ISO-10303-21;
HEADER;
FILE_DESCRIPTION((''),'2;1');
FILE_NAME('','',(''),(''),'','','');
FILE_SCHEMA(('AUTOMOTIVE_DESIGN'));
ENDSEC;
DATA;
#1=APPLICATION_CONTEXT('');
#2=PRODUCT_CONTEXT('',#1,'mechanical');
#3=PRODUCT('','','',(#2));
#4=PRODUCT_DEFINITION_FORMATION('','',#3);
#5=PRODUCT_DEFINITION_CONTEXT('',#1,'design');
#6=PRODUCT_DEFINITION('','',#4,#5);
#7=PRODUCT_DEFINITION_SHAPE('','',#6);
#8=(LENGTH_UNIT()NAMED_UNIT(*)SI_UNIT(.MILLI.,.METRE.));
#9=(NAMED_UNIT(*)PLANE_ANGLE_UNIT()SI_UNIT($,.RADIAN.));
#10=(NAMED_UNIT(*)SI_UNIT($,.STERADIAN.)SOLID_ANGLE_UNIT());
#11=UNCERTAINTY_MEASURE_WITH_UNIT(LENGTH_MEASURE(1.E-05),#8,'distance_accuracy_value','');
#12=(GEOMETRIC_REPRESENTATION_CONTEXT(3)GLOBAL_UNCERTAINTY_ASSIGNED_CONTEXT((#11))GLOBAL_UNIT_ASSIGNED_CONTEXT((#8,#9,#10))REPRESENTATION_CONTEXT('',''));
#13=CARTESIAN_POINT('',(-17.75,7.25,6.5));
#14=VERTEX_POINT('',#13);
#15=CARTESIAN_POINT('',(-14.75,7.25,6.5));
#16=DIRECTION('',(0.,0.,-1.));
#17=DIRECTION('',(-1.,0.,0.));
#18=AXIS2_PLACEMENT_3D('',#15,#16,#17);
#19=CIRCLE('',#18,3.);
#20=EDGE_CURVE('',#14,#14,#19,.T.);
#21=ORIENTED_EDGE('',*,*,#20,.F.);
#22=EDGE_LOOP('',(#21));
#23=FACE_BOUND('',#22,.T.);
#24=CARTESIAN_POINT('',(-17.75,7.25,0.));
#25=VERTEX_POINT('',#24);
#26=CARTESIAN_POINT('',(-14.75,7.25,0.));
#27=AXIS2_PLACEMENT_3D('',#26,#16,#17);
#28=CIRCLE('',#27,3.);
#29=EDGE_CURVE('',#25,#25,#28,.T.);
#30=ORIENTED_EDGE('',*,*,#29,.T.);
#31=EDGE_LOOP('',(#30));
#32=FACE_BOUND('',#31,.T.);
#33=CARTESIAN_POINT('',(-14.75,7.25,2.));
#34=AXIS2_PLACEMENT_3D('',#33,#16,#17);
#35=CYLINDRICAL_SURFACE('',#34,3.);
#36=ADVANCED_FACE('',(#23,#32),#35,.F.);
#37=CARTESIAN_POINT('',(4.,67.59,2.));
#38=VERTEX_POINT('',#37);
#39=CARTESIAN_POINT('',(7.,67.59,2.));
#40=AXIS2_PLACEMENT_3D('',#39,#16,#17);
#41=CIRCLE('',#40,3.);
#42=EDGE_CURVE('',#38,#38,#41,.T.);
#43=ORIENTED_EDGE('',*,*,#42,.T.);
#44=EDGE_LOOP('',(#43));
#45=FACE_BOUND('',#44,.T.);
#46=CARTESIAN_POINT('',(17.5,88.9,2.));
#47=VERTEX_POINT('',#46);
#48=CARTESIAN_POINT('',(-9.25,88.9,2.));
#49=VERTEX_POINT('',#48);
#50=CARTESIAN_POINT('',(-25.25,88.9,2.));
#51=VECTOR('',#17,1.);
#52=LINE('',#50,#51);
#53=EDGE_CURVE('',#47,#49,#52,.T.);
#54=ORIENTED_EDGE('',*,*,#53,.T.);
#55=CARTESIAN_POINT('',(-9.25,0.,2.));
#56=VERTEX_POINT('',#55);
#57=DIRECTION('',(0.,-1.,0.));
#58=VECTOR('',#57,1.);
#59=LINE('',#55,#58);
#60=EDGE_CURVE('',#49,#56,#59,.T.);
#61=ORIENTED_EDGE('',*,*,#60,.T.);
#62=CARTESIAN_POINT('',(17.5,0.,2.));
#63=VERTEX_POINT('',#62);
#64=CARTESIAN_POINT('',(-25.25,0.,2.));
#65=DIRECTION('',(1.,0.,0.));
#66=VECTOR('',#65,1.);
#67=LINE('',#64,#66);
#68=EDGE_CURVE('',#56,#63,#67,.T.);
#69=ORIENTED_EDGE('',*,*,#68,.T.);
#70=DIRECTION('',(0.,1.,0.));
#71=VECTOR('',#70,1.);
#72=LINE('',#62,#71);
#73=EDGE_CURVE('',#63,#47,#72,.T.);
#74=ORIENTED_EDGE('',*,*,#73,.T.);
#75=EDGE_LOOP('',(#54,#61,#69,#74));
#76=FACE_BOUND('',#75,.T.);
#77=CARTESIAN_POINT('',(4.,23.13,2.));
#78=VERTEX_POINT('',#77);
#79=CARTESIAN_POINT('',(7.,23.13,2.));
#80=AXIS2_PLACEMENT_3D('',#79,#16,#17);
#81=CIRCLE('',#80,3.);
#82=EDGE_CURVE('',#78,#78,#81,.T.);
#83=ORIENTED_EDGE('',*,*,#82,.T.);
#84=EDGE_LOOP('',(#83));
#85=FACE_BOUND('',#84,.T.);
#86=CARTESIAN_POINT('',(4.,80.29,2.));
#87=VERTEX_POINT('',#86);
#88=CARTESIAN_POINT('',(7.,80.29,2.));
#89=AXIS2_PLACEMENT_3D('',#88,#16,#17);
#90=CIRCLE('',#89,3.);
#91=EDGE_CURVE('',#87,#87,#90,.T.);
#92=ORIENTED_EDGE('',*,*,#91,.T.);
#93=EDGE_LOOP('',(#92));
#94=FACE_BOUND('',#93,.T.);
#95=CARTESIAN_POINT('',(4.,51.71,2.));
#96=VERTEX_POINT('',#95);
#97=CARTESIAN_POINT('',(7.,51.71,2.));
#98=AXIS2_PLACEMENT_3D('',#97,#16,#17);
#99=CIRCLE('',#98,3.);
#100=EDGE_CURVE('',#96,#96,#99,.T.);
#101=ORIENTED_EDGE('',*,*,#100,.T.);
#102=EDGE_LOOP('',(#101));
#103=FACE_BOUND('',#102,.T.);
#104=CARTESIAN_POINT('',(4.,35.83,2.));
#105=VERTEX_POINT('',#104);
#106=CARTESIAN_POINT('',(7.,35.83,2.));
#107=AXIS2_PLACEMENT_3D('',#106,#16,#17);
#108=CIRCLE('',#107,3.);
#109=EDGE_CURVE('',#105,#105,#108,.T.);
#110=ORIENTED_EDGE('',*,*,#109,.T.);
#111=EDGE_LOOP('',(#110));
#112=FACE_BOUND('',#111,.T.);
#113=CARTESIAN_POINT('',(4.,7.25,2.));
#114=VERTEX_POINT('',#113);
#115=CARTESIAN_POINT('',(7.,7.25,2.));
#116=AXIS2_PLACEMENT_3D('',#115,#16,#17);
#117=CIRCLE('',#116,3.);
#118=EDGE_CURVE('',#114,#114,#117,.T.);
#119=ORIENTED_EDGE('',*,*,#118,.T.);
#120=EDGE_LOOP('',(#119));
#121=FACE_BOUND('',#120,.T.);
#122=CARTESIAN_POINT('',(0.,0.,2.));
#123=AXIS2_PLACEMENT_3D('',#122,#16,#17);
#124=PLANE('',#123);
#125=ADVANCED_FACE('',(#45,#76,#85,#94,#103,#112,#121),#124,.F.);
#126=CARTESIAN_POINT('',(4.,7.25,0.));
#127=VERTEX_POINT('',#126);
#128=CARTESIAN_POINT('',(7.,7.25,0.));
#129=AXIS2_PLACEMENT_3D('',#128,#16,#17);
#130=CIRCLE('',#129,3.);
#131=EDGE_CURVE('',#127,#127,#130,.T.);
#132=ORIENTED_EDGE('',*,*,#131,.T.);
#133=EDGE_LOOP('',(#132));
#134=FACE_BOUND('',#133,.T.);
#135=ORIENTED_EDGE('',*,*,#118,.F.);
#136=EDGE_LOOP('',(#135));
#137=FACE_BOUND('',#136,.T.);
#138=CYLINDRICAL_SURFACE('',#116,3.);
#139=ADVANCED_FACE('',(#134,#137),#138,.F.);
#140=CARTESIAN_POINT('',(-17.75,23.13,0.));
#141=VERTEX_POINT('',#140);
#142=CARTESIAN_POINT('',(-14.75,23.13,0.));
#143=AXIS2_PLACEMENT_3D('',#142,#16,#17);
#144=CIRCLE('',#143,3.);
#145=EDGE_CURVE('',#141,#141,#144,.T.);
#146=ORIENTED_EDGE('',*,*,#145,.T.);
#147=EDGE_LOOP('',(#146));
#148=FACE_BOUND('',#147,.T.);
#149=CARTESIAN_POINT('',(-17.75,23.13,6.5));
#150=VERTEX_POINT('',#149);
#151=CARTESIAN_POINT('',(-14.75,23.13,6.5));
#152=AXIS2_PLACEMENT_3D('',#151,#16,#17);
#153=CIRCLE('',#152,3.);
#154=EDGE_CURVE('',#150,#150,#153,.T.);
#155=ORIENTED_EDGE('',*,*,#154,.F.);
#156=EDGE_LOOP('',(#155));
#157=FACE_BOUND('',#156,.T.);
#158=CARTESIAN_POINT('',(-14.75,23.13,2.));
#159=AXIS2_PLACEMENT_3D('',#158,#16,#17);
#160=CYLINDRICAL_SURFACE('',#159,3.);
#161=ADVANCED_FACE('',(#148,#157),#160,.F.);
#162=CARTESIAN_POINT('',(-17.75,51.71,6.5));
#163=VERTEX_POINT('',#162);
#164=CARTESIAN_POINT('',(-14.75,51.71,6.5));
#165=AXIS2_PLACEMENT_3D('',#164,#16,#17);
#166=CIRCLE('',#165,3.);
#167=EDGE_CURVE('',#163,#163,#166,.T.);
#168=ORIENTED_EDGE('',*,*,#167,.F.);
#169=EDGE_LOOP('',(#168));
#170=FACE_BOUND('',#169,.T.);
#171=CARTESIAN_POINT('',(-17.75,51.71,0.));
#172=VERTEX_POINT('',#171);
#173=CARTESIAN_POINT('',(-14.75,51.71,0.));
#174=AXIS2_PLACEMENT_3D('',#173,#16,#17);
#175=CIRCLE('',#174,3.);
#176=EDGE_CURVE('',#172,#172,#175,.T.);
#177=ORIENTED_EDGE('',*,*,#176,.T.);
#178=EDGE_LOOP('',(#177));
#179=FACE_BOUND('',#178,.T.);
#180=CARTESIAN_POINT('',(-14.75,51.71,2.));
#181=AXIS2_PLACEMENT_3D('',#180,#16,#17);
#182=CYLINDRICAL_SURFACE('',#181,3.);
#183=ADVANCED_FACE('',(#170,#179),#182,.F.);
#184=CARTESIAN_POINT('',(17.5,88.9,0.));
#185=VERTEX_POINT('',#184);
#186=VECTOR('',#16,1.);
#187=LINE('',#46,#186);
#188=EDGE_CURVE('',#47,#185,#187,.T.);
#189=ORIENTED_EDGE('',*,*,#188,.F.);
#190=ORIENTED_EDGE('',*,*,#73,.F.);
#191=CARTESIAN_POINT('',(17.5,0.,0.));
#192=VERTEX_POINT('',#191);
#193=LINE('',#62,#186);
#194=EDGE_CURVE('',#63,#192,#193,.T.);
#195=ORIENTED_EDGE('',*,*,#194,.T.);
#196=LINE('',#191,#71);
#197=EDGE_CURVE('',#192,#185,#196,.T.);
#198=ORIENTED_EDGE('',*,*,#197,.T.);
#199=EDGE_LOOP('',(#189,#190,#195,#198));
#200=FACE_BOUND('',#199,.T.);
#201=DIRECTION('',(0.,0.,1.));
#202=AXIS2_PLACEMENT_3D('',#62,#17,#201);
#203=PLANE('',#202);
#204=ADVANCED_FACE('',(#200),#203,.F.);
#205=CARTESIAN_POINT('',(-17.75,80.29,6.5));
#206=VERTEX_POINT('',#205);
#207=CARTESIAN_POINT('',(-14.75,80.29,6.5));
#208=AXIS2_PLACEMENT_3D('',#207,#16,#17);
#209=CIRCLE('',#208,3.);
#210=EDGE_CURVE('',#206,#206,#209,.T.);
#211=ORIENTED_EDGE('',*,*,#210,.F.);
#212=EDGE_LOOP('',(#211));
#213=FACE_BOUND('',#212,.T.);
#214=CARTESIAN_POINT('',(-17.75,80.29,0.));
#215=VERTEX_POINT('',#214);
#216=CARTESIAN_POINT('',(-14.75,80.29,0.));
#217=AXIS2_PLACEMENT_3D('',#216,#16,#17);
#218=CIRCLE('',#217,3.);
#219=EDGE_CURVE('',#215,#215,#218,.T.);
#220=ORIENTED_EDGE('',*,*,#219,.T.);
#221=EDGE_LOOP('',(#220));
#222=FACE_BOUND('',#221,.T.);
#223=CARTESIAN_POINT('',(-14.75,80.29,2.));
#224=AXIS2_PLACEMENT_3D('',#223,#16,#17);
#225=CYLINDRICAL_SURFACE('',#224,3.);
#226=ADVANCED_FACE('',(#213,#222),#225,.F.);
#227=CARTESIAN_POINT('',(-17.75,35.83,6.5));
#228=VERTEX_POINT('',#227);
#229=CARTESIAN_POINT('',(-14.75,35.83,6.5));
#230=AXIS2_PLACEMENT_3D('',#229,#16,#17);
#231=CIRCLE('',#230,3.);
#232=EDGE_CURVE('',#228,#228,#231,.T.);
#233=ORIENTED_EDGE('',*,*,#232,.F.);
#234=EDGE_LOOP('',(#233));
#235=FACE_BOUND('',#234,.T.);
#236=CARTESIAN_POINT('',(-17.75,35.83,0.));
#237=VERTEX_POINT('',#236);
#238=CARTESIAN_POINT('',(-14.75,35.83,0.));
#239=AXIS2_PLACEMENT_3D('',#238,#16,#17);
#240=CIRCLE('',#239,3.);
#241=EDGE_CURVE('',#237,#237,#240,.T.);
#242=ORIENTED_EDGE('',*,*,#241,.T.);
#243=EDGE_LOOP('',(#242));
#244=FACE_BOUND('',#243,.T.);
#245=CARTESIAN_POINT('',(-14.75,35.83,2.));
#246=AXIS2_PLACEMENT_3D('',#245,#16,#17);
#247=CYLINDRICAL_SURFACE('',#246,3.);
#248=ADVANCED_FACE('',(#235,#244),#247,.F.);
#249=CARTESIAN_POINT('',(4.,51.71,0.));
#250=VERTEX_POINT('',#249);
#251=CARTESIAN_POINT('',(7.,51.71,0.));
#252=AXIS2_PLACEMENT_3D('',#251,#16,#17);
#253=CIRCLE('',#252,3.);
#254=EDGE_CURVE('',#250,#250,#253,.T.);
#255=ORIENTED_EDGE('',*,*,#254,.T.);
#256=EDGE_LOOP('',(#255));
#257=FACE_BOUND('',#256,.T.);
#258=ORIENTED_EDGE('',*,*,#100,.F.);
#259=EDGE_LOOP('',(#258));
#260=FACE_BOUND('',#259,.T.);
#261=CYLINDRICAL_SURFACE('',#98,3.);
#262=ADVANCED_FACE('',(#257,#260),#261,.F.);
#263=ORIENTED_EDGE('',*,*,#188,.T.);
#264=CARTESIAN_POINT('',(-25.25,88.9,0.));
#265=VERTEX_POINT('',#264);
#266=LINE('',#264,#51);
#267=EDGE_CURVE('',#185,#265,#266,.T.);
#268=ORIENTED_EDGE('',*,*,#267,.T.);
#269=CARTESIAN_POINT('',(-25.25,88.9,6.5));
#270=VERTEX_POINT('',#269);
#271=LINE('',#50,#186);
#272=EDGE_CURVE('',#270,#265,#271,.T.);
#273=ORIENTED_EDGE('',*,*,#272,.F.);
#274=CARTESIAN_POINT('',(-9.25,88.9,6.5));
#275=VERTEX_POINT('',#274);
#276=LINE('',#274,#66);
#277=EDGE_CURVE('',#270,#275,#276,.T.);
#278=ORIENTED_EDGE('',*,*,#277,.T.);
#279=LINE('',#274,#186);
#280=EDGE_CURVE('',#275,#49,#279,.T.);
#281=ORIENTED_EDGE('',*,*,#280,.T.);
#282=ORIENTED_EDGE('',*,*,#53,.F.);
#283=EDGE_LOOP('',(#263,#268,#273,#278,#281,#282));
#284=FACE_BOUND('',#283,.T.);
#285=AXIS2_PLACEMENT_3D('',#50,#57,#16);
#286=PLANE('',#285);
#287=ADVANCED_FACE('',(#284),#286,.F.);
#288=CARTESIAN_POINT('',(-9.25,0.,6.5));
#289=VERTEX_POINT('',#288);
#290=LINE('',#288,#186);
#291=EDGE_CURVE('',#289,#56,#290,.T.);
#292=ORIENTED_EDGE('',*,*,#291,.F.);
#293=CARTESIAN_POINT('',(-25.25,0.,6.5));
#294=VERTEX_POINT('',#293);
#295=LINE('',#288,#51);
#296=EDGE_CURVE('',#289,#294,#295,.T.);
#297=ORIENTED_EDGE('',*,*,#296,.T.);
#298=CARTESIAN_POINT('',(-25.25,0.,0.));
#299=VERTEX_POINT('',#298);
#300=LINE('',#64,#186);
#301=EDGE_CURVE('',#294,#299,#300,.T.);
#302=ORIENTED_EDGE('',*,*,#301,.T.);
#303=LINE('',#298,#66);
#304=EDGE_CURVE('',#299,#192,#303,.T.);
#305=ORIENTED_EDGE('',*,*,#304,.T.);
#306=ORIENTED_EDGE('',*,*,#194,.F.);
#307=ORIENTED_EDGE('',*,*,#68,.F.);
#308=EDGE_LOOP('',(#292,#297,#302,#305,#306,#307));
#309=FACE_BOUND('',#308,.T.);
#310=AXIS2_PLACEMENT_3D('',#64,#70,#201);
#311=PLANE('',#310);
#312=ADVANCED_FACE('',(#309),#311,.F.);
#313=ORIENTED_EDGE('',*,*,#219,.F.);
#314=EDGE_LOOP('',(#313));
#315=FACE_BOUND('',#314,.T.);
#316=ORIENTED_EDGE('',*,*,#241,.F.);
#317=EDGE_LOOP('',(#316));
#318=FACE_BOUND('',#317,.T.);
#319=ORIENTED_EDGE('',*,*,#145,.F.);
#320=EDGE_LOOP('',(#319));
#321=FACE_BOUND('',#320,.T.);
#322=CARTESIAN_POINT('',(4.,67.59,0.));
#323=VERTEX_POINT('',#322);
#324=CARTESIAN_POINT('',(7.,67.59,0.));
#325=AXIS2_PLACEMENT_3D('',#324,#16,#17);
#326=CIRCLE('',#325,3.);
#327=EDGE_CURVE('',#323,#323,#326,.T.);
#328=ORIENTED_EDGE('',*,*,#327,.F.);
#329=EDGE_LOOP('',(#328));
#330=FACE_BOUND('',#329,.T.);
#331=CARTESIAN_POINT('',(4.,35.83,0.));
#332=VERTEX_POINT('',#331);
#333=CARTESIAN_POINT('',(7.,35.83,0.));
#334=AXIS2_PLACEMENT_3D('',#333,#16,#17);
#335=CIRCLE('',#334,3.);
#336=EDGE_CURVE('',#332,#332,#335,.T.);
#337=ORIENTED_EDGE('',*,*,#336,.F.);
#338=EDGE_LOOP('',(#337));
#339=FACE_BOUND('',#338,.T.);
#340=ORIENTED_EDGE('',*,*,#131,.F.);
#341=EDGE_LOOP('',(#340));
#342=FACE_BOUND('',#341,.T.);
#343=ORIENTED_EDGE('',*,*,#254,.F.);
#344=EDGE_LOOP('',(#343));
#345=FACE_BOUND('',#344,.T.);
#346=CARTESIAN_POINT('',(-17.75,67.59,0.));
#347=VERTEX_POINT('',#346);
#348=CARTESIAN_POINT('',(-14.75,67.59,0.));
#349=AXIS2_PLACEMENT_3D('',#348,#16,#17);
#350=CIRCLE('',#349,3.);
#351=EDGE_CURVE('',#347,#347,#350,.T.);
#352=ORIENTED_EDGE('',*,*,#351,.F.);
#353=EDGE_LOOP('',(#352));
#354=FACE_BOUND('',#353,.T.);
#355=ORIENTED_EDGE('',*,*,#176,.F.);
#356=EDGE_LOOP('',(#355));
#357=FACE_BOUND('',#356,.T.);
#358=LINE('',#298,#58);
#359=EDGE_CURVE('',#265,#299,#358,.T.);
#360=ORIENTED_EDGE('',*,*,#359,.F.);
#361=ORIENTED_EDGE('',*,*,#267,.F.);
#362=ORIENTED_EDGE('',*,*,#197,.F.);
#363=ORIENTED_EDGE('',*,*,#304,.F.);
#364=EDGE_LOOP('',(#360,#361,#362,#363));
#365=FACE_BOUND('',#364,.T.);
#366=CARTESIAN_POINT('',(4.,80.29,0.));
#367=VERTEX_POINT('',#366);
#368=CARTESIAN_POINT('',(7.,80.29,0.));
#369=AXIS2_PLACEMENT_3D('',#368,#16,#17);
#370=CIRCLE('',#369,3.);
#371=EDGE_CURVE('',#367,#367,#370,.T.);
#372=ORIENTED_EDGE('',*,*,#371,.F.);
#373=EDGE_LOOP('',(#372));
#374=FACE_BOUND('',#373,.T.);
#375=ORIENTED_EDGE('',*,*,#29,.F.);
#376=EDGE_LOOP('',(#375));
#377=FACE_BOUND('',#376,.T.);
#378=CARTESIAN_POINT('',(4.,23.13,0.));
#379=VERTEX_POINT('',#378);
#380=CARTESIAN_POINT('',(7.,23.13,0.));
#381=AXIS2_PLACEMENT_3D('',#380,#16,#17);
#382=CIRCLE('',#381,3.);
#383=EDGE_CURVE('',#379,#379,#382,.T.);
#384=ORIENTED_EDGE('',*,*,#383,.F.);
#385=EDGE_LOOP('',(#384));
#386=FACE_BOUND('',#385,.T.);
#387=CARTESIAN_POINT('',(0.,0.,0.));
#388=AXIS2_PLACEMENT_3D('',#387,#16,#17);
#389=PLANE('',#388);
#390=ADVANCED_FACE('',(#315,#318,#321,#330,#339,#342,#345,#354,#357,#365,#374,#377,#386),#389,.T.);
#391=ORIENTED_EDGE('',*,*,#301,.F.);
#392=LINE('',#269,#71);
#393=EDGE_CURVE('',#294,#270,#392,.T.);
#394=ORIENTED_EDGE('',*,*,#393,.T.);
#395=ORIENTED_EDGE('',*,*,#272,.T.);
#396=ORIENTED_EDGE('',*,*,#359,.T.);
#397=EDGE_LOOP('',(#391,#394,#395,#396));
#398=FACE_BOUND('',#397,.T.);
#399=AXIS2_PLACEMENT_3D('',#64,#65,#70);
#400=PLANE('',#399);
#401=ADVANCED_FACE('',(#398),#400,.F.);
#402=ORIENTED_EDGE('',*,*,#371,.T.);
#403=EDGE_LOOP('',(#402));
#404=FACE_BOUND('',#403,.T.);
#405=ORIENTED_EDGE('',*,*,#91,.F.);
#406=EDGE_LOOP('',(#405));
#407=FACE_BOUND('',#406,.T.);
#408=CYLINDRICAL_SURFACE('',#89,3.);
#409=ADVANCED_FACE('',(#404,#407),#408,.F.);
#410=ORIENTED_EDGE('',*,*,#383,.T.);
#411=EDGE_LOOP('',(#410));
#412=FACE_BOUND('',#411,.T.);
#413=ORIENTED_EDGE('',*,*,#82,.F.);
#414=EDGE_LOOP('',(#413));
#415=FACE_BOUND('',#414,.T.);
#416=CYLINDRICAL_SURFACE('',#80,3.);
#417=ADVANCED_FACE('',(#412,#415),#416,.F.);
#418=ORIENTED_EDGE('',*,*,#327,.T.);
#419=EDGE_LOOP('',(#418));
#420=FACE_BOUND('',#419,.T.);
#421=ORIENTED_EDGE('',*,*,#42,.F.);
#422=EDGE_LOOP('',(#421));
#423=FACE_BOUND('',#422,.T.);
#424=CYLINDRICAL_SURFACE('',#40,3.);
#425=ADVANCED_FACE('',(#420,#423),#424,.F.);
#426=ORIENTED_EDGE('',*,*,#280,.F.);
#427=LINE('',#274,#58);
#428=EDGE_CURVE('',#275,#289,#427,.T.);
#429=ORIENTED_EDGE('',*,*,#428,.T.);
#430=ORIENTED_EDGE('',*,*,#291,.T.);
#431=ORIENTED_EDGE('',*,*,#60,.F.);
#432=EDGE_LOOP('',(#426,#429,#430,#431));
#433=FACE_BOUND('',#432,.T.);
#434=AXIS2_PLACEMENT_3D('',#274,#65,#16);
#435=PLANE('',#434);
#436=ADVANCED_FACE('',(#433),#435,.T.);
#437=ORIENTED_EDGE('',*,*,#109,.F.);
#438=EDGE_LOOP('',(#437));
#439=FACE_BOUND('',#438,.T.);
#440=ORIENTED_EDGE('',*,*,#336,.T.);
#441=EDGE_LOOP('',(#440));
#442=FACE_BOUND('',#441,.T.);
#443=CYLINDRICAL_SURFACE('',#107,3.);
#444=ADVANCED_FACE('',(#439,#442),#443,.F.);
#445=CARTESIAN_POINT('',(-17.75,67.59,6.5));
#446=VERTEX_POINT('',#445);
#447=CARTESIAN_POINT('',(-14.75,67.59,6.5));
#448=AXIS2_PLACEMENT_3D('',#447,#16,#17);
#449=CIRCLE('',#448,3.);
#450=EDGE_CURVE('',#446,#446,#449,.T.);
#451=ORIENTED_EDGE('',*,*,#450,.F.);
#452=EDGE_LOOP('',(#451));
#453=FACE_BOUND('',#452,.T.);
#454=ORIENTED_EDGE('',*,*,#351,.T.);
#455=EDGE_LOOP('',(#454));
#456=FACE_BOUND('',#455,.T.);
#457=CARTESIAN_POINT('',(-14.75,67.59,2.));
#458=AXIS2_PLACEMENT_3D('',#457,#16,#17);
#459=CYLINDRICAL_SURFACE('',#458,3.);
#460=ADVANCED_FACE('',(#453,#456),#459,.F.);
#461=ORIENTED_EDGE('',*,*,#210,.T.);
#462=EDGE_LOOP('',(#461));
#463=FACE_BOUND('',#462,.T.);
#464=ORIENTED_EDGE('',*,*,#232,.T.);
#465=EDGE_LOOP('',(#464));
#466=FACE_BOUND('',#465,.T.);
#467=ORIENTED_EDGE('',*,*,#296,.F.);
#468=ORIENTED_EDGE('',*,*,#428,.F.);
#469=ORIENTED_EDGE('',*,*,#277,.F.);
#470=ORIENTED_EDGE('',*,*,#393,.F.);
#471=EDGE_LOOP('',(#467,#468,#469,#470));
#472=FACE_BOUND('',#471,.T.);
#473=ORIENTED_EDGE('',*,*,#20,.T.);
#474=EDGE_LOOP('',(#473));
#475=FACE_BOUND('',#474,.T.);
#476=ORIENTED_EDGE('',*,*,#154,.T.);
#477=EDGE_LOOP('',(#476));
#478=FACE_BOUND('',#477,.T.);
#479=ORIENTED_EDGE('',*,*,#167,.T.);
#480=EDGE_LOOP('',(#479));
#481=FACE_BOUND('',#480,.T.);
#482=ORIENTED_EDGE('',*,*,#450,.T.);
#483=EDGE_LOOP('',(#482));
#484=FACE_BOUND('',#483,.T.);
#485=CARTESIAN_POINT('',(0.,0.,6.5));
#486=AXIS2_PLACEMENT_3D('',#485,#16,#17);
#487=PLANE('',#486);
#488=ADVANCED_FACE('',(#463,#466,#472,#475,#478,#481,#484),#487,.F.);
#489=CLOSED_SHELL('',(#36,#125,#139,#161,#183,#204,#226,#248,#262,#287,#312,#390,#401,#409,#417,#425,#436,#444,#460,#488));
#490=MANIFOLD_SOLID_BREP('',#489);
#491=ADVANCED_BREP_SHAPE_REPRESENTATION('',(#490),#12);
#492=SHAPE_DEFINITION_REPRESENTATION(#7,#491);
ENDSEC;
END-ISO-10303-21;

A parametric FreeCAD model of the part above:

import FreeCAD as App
import Part
import Sketcher
from FreeCAD import Vector
Q = App.Units.Quantity

doc = App.newDocument("Part")
body = doc.addObject("PartDesign::Body", "Body")

# Sketch on XY plane
sketch1 = body.newObject("Sketcher::SketchObject", "Sketch")
sketch1.AttachmentSupport = (doc.getObject("XY_Plane"), [""])
sketch1.MapMode = "FlatFace"
sketch1.addGeometry([
    Part.LineSegment(Vector(-25, 89, 0), Vector(-25, 0, 0)),  # 0
    Part.LineSegment(Vector(-25, 0, 0), Vector(18, 0, 0)),  # 1
    Part.LineSegment(Vector(18, 0, 0), Vector(18, 89, 0)),  # 2
    Part.LineSegment(Vector(18, 89, 0), Vector(-25, 89, 0)),  # 3
    Part.LineSegment(Vector(-10, 2, 0), Vector(-20, 2, 0)),  # 4
    Part.LineSegment(Vector(-20, 2, 0), Vector(-20, 12, 0)),  # 5
    Part.LineSegment(Vector(-20, 12, 0), Vector(-10, 12, 0)),  # 6
    Part.LineSegment(Vector(-10, 12, 0), Vector(-10, 2, 0)),  # 7
    Part.LineSegment(Vector(-10, 18, 0), Vector(-20, 18, 0)),  # 8
    Part.LineSegment(Vector(-20, 18, 0), Vector(-20, 28, 0)),  # 9
    Part.LineSegment(Vector(-20, 28, 0), Vector(-10, 28, 0)),  # 10
    Part.LineSegment(Vector(-10, 28, 0), Vector(-10, 18, 0)),  # 11
    Part.LineSegment(Vector(-10, 31, 0), Vector(-20, 31, 0)),  # 12
    Part.LineSegment(Vector(-20, 31, 0), Vector(-20, 41, 0)),  # 13
    Part.LineSegment(Vector(-20, 41, 0), Vector(-10, 41, 0)),  # 14
    Part.LineSegment(Vector(-10, 41, 0), Vector(-10, 31, 0)),  # 15
    Part.LineSegment(Vector(12, 2, 0), Vector(2, 2, 0)),  # 16
    Part.LineSegment(Vector(2, 2, 0), Vector(2, 12, 0)),  # 17
    Part.LineSegment(Vector(2, 12, 0), Vector(12, 12, 0)),  # 18
    Part.LineSegment(Vector(12, 12, 0), Vector(12, 2, 0)),  # 19
    Part.LineSegment(Vector(12, 18, 0), Vector(2, 18, 0)),  # 20
    Part.LineSegment(Vector(2, 18, 0), Vector(2, 28, 0)),  # 21
    Part.LineSegment(Vector(2, 28, 0), Vector(12, 28, 0)),  # 22
    Part.LineSegment(Vector(12, 28, 0), Vector(12, 18, 0)),  # 23
    Part.LineSegment(Vector(12, 31, 0), Vector(2, 31, 0)),  # 24
    Part.LineSegment(Vector(2, 31, 0), Vector(2, 41, 0)),  # 25
    Part.LineSegment(Vector(2, 41, 0), Vector(12, 41, 0)),  # 26
    Part.LineSegment(Vector(12, 41, 0), Vector(12, 31, 0)),  # 27
    Part.LineSegment(Vector(-10, 47, 0), Vector(-20, 47, 0)),  # 28
    Part.LineSegment(Vector(-20, 47, 0), Vector(-20, 56, 0)),  # 29
    Part.LineSegment(Vector(-20, 56, 0), Vector(-10, 56, 0)),  # 30
    Part.LineSegment(Vector(-10, 56, 0), Vector(-10, 47, 0)),  # 31
    Part.LineSegment(Vector(-10, 63, 0), Vector(-20, 63, 0)),  # 32
    Part.LineSegment(Vector(-20, 63, 0), Vector(-20, 72, 0)),  # 33
    Part.LineSegment(Vector(-20, 72, 0), Vector(-10, 72, 0)),  # 34
    Part.LineSegment(Vector(-10, 72, 0), Vector(-10, 63, 0)),  # 35
    Part.LineSegment(Vector(-10, 76, 0), Vector(-20, 76, 0)),  # 36
    Part.LineSegment(Vector(-20, 76, 0), Vector(-20, 85, 0)),  # 37
    Part.LineSegment(Vector(-20, 85, 0), Vector(-10, 85, 0)),  # 38
    Part.LineSegment(Vector(-10, 85, 0), Vector(-10, 76, 0)),  # 39
    Part.LineSegment(Vector(12, 47, 0), Vector(2, 47, 0)),  # 40
    Part.LineSegment(Vector(2, 47, 0), Vector(2, 56, 0)),  # 41
    Part.LineSegment(Vector(2, 56, 0), Vector(12, 56, 0)),  # 42
    Part.LineSegment(Vector(12, 56, 0), Vector(12, 47, 0)),  # 43
    Part.LineSegment(Vector(12, 63, 0), Vector(2, 63, 0)),  # 44
    Part.LineSegment(Vector(2, 63, 0), Vector(2, 72, 0)),  # 45
    Part.LineSegment(Vector(2, 72, 0), Vector(12, 72, 0)),  # 46
    Part.LineSegment(Vector(12, 72, 0), Vector(12, 63, 0)),  # 47
    Part.LineSegment(Vector(12, 76, 0), Vector(2, 76, 0)),  # 48
    Part.LineSegment(Vector(2, 76, 0), Vector(2, 85, 0)),  # 49
    Part.LineSegment(Vector(2, 85, 0), Vector(12, 85, 0)),  # 50
    Part.LineSegment(Vector(12, 85, 0), Vector(12, 76, 0)),  # 51
], False)
sketch1.addConstraint([
    Sketcher.Constraint("Coincident", 0, 2, 1, 1),
    Sketcher.Constraint("Coincident", 1, 2, 2, 1),
    Sketcher.Constraint("Coincident", 2, 2, 3, 1),
    Sketcher.Constraint("Coincident", 3, 2, 0, 1),
    Sketcher.Constraint("Coincident", 4, 2, 5, 1),
    Sketcher.Constraint("Coincident", 5, 2, 6, 1),
    Sketcher.Constraint("Coincident", 6, 2, 7, 1),
    Sketcher.Constraint("Coincident", 7, 2, 4, 1),
    Sketcher.Constraint("Coincident", 8, 2, 9, 1),
    Sketcher.Constraint("Coincident", 9, 2, 10, 1),
    Sketcher.Constraint("Coincident", 10, 2, 11, 1),
    Sketcher.Constraint("Coincident", 11, 2, 8, 1),
    Sketcher.Constraint("Coincident", 12, 2, 13, 1),
    Sketcher.Constraint("Coincident", 13, 2, 14, 1),
    Sketcher.Constraint("Coincident", 14, 2, 15, 1),
    Sketcher.Constraint("Coincident", 15, 2, 12, 1),
    Sketcher.Constraint("Coincident", 16, 2, 17, 1),
    Sketcher.Constraint("Coincident", 17, 2, 18, 1),
    Sketcher.Constraint("Coincident", 18, 2, 19, 1),
    Sketcher.Constraint("Coincident", 19, 2, 16, 1),
    Sketcher.Constraint("Coincident", 20, 2, 21, 1),
    Sketcher.Constraint("Coincident", 21, 2, 22, 1),
    Sketcher.Constraint("Coincident", 22, 2, 23, 1),
    Sketcher.Constraint("Coincident", 23, 2, 20, 1),
    Sketcher.Constraint("Coincident", 24, 2, 25, 1),
    Sketcher.Constraint("Coincident", 25, 2, 26, 1),
    Sketcher.Constraint("Coincident", 26, 2, 27, 1),
    Sketcher.Constraint("Coincident", 27, 2, 24, 1),
    Sketcher.Constraint("Coincident", 28, 2, 29, 1),
    Sketcher.Constraint("Coincident", 29, 2, 30, 1),
    Sketcher.Constraint("Coincident", 30, 2, 31, 1),
    Sketcher.Constraint("Coincident", 31, 2, 28, 1),
    Sketcher.Constraint("Coincident", 32, 2, 33, 1),
    Sketcher.Constraint("Coincident", 33, 2, 34, 1),
    Sketcher.Constraint("Coincident", 34, 2, 35, 1),
    Sketcher.Constraint("Coincident", 35, 2, 32, 1),
    Sketcher.Constraint("Coincident", 36, 2, 37, 1),
    Sketcher.Constraint("Coincident", 37, 2, 38, 1),
    Sketcher.Constraint("Coincident", 38, 2, 39, 1),
    Sketcher.Constraint("Coincident", 39, 2, 36, 1),
    Sketcher.Constraint("Coincident", 40, 2, 41, 1),
    Sketcher.Constraint("Coincident", 41, 2, 42, 1),
    Sketcher.Constraint("Coincident", 42, 2, 43, 1),
    Sketcher.Constraint("Coincident", 43, 2, 40, 1),
    Sketcher.Constraint("Coincident", 44, 2, 45, 1),
    Sketcher.Constraint("Coincident", 45, 2, 46, 1),
    Sketcher.Constraint("Coincident", 46, 2, 47, 1),
    Sketcher.Constraint("Coincident", 47, 2, 44, 1),
    Sketcher.Constraint("Coincident", 48, 2, 49, 1),
    Sketcher.Constraint("Coincident", 49, 2, 50, 1),
    Sketcher.Constraint("Coincident", 50, 2, 51, 1),
    Sketcher.Constraint("Coincident", 51, 2, 48, 1),
    Sketcher.Constraint("Vertical", 0),
    Sketcher.Constraint("Horizontal", 1),
    Sketcher.Constraint("Vertical", 2),
    Sketcher.Constraint("Horizontal", 3),
    Sketcher.Constraint("Horizontal", 4),
    Sketcher.Constraint("Vertical", 5),
    Sketcher.Constraint("Horizontal", 6),
    Sketcher.Constraint("Vertical", 7),
    Sketcher.Constraint("Horizontal", 8),
    Sketcher.Constraint("Vertical", 9),
    Sketcher.Constraint("Horizontal", 10),
    Sketcher.Constraint("Vertical", 11),
    Sketcher.Constraint("Horizontal", 12),
    Sketcher.Constraint("Vertical", 13),
    Sketcher.Constraint("Horizontal", 14),
    Sketcher.Constraint("Vertical", 15),
    Sketcher.Constraint("Horizontal", 16),
    Sketcher.Constraint("Vertical", 17),
    Sketcher.Constraint("Horizontal", 18),
    Sketcher.Constraint("Vertical", 19),
    Sketcher.Constraint("Horizontal", 20),
    Sketcher.Constraint("Vertical", 21),
    Sketcher.Constraint("Horizontal", 22),
    Sketcher.Constraint("Vertical", 23),
    Sketcher.Constraint("Horizontal", 24),
    Sketcher.Constraint("Vertical", 25),
    Sketcher.Constraint("Horizontal", 26),
    Sketcher.Constraint("Vertical", 27),
    Sketcher.Constraint("Horizontal", 28),
    Sketcher.Constraint("Vertical", 29),
    Sketcher.Constraint("Horizontal", 30),
    Sketcher.Constraint("Vertical", 31),
    Sketcher.Constraint("Horizontal", 32),
    Sketcher.Constraint("Vertical", 33),
    Sketcher.Constraint("Horizontal", 34),
    Sketcher.Constraint("Vertical", 35),
    Sketcher.Constraint("Horizontal", 36),
    Sketcher.Constraint("Vertical", 37),
    Sketcher.Constraint("Horizontal", 38),
    Sketcher.Constraint("Vertical", 39),
    Sketcher.Constraint("Horizontal", 40),
    Sketcher.Constraint("Vertical", 41),
    Sketcher.Constraint("Horizontal", 42),
    Sketcher.Constraint("Vertical", 43),
    Sketcher.Constraint("Horizontal", 44),
    Sketcher.Constraint("Vertical", 45),
    Sketcher.Constraint("Horizontal", 46),
    Sketcher.Constraint("Vertical", 47),
    Sketcher.Constraint("Horizontal", 48),
    Sketcher.Constraint("Vertical", 49),
    Sketcher.Constraint("Horizontal", 50),
    Sketcher.Constraint("Vertical", 51),
    Sketcher.Constraint("PointOnObject", 0, 2, -1),
    Sketcher.Constraint("Horizontal", 7, 2, 16, 2),
    Sketcher.Constraint("Horizontal", 6, 2, 17, 2),
    Sketcher.Constraint("Horizontal", 11, 2, 20, 2),
    Sketcher.Constraint("Horizontal", 10, 2, 21, 2),
    Sketcher.Constraint("Horizontal", 15, 2, 24, 2),
    Sketcher.Constraint("Horizontal", 14, 2, 25, 2),
    Sketcher.Constraint("Horizontal", 31, 2, 40, 2),
    Sketcher.Constraint("Horizontal", 30, 2, 41, 2),
    Sketcher.Constraint("Horizontal", 35, 2, 44, 2),
    Sketcher.Constraint("Horizontal", 34, 2, 45, 2),
    Sketcher.Constraint("Horizontal", 39, 2, 48, 2),
    Sketcher.Constraint("Horizontal", 38, 2, 49, 2),
    Sketcher.Constraint("Vertical", 5, 2, 8, 2),
    Sketcher.Constraint("Vertical", 7, 2, 10, 2),
    Sketcher.Constraint("Vertical", 9, 2, 12, 2),
    Sketcher.Constraint("Vertical", 11, 2, 14, 2),
    Sketcher.Constraint("Vertical", 17, 2, 20, 2),
    Sketcher.Constraint("Vertical", 19, 2, 22, 2),
    Sketcher.Constraint("Vertical", 21, 2, 24, 2),
    Sketcher.Constraint("Vertical", 23, 2, 26, 2),
    Sketcher.Constraint("Vertical", 13, 2, 28, 2),
    Sketcher.Constraint("Vertical", 15, 2, 30, 2),
    Sketcher.Constraint("Vertical", 29, 2, 32, 2),
    Sketcher.Constraint("Vertical", 31, 2, 34, 2),
    Sketcher.Constraint("Vertical", 33, 2, 36, 2),
    Sketcher.Constraint("Vertical", 35, 2, 38, 2),
    Sketcher.Constraint("Vertical", 25, 2, 40, 2),
    Sketcher.Constraint("Vertical", 27, 2, 42, 2),
    Sketcher.Constraint("Vertical", 41, 2, 44, 2),
    Sketcher.Constraint("Vertical", 43, 2, 46, 2),
    Sketcher.Constraint("Vertical", 45, 2, 48, 2),
    Sketcher.Constraint("Vertical", 47, 2, 50, 2),
    Sketcher.Constraint("Equal", 14, 16),
    Sketcher.Constraint("Equal", 50, 5),
    Sketcher.Constraint("Equal", 7, 9),
    Sketcher.Constraint("Equal", 11, 13),
    Sketcher.Constraint("Equal", 27, 29),
    Sketcher.Constraint("Equal", 31, 33),
    Sketcher.Constraint("Equal", 35, 37),
    Sketcher.Constraint("DistanceX", 4, 2, 4, 1, Q("9.5 mm")),
    Sketcher.Constraint("DistanceY", 0, 2, 0, 1, Q("88.9 mm")),
    Sketcher.Constraint("DistanceY", -1, 1, 5, 2, Q("12 mm")),
    Sketcher.Constraint("DistanceX", 6, 2, -1, 1, Q("10 mm")),
    Sketcher.Constraint("DistanceX", 4, 2, 1, 2, Q("37 mm")),
    Sketcher.Constraint("DistanceX", 1, 1, 1, 2, Q("42.75 mm")),
    Sketcher.Constraint("DistanceY", 9, 2, 12, 2, Q("3.2 mm")),
    Sketcher.Constraint("DistanceY", 33, 2, 36, 2, Q("3.2 mm")),
    Sketcher.Constraint("DistanceY", -1, 1, 8, 2, Q("18.38 mm")),
    Sketcher.Constraint("DistanceX", -1, 1, 16, 2, Q("2.25 mm")),
    Sketcher.Constraint("DistanceY", -1, 1, 28, 2, Q("46.96 mm")),
    Sketcher.Constraint("DistanceY", -1, 1, 32, 2, Q("62.84 mm")),
])
pad1 = body.newObject("PartDesign::Pad", "Pad")
pad1.Profile = sketch1
pad1.Length = 2

# Sketch on XY plane
sketch2 = body.newObject("Sketcher::SketchObject", "Sketch001")
sketch2.AttachmentSupport = (doc.getObject("XY_Plane"), [""])
sketch2.MapMode = "FlatFace"
sketch2.addGeometry([
    Part.LineSegment(Vector(11.8, 85, 0), Vector(11.8, 75.5, 0)),  # 0
    Part.LineSegment(Vector(11.8, 75.5, 0), Vector(2.2, 75.5, 0)),  # 1
    Part.LineSegment(Vector(2.2, 75.5, 0), Vector(2.2, 85, 0)),  # 2
    Part.LineSegment(Vector(2.2, 85, 0), Vector(11.8, 85, 0)),  # 3
    Part.Circle(Vector(7, 80.3, 0), Vector(0, 0, 1), 3),  # 4
    Part.LineSegment(Vector(-10, 85, 0), Vector(-10, 75.5, 0)),  # 5
    Part.LineSegment(Vector(-10, 75.5, 0), Vector(-19.5, 75.5, 0)),  # 6
    Part.LineSegment(Vector(-19.5, 75.5, 0), Vector(-19.5, 85, 0)),  # 7
    Part.LineSegment(Vector(-19.5, 85, 0), Vector(-10, 85, 0)),  # 8
    Part.Circle(Vector(-14.8, 80.3, 0), Vector(0, 0, 1), 3),  # 9
    Part.LineSegment(Vector(11.8, 72.3, 0), Vector(11.8, 62.8, 0)),  # 10
    Part.LineSegment(Vector(11.8, 62.8, 0), Vector(2.2, 62.8, 0)),  # 11
    Part.LineSegment(Vector(2.2, 62.8, 0), Vector(2.2, 72.3, 0)),  # 12
    Part.LineSegment(Vector(2.2, 72.3, 0), Vector(11.8, 72.3, 0)),  # 13
    Part.Circle(Vector(7, 67.6, 0), Vector(0, 0, 1), 3),  # 14
    Part.LineSegment(Vector(-10, 72.3, 0), Vector(-10, 62.8, 0)),  # 15
    Part.LineSegment(Vector(-10, 62.8, 0), Vector(-19.5, 62.8, 0)),  # 16
    Part.LineSegment(Vector(-19.5, 62.8, 0), Vector(-19.5, 72.3, 0)),  # 17
    Part.LineSegment(Vector(-19.5, 72.3, 0), Vector(-10, 72.3, 0)),  # 18
    Part.Circle(Vector(-14.8, 67.6, 0), Vector(0, 0, 1), 3),  # 19
    Part.LineSegment(Vector(11.8, 56.5, 0), Vector(11.8, 47, 0)),  # 20
    Part.LineSegment(Vector(11.8, 47, 0), Vector(2.2, 47, 0)),  # 21
    Part.LineSegment(Vector(2.2, 47, 0), Vector(2.2, 56.5, 0)),  # 22
    Part.LineSegment(Vector(2.2, 56.5, 0), Vector(11.8, 56.5, 0)),  # 23
    Part.Circle(Vector(7, 51.7, 0), Vector(0, 0, 1), 3),  # 24
    Part.LineSegment(Vector(-10, 56.5, 0), Vector(-10, 47, 0)),  # 25
    Part.LineSegment(Vector(-10, 47, 0), Vector(-19.5, 47, 0)),  # 26
    Part.LineSegment(Vector(-19.5, 47, 0), Vector(-19.5, 56.5, 0)),  # 27
    Part.LineSegment(Vector(-19.5, 56.5, 0), Vector(-10, 56.5, 0)),  # 28
    Part.Circle(Vector(-14.8, 51.7, 0), Vector(0, 0, 1), 3),  # 29
    Part.LineSegment(Vector(11.8, 40.6, 0), Vector(11.8, 31.1, 0)),  # 30
    Part.LineSegment(Vector(11.8, 31.1, 0), Vector(2.2, 31.1, 0)),  # 31
    Part.LineSegment(Vector(2.2, 31.1, 0), Vector(2.2, 40.6, 0)),  # 32
    Part.LineSegment(Vector(2.2, 40.6, 0), Vector(11.8, 40.6, 0)),  # 33
    Part.Circle(Vector(7, 35.8, 0), Vector(0, 0, 1), 3),  # 34
    Part.LineSegment(Vector(-10, 40.6, 0), Vector(-10, 31.1, 0)),  # 35
    Part.LineSegment(Vector(-10, 31.1, 0), Vector(-19.5, 31.1, 0)),  # 36
    Part.LineSegment(Vector(-19.5, 31.1, 0), Vector(-19.5, 40.6, 0)),  # 37
    Part.LineSegment(Vector(-19.5, 40.6, 0), Vector(-10, 40.6, 0)),  # 38
    Part.Circle(Vector(-14.8, 35.8, 0), Vector(0, 0, 1), 3),  # 39
    Part.LineSegment(Vector(11.8, 27.9, 0), Vector(11.8, 18.4, 0)),  # 40
    Part.LineSegment(Vector(11.8, 18.4, 0), Vector(2.2, 18.4, 0)),  # 41
    Part.LineSegment(Vector(2.2, 18.4, 0), Vector(2.2, 27.9, 0)),  # 42
    Part.LineSegment(Vector(2.2, 27.9, 0), Vector(11.8, 27.9, 0)),  # 43
    Part.Circle(Vector(7, 23.1, 0), Vector(0, 0, 1), 3),  # 44
    Part.LineSegment(Vector(-10, 27.9, 0), Vector(-10, 18.4, 0)),  # 45
    Part.LineSegment(Vector(-10, 18.4, 0), Vector(-19.5, 18.4, 0)),  # 46
    Part.LineSegment(Vector(-19.5, 18.4, 0), Vector(-19.5, 27.9, 0)),  # 47
    Part.LineSegment(Vector(-19.5, 27.9, 0), Vector(-10, 27.9, 0)),  # 48
    Part.Circle(Vector(-14.8, 23.1, 0), Vector(0, 0, 1), 3),  # 49
    Part.LineSegment(Vector(-10, 12, 0), Vector(-10, 2.5, 0)),  # 50
    Part.LineSegment(Vector(-10, 2.5, 0), Vector(-19.5, 2.5, 0)),  # 51
    Part.LineSegment(Vector(-19.5, 2.5, 0), Vector(-19.5, 12, 0)),  # 52
    Part.LineSegment(Vector(-19.5, 12, 0), Vector(-10, 12, 0)),  # 53
    Part.Circle(Vector(-14.8, 7.2, 0), Vector(0, 0, 1), 3),  # 54
    Part.LineSegment(Vector(11.8, 12, 0), Vector(11.8, 2.5, 0)),  # 55
    Part.LineSegment(Vector(11.8, 2.5, 0), Vector(2.2, 2.5, 0)),  # 56
    Part.LineSegment(Vector(2.2, 2.5, 0), Vector(2.2, 12, 0)),  # 57
    Part.LineSegment(Vector(2.2, 12, 0), Vector(11.8, 12, 0)),  # 58
    Part.Circle(Vector(7, 7.2, 0), Vector(0, 0, 1), 3),  # 59
], False)
sketch2.addConstraint([
    Sketcher.Constraint("Coincident", 0, 2, 1, 1),
    Sketcher.Constraint("Coincident", 1, 2, 2, 1),
    Sketcher.Constraint("Coincident", 2, 2, 3, 1),
    Sketcher.Constraint("Coincident", 3, 2, 0, 1),
    Sketcher.Constraint("Coincident", 5, 2, 6, 1),
    Sketcher.Constraint("Coincident", 6, 2, 7, 1),
    Sketcher.Constraint("Coincident", 7, 2, 8, 1),
    Sketcher.Constraint("Coincident", 8, 2, 5, 1),
    Sketcher.Constraint("Coincident", 10, 2, 11, 1),
    Sketcher.Constraint("Coincident", 11, 2, 12, 1),
    Sketcher.Constraint("Coincident", 12, 2, 13, 1),
    Sketcher.Constraint("Coincident", 13, 2, 10, 1),
    Sketcher.Constraint("Coincident", 15, 2, 16, 1),
    Sketcher.Constraint("Coincident", 16, 2, 17, 1),
    Sketcher.Constraint("Coincident", 17, 2, 18, 1),
    Sketcher.Constraint("Coincident", 18, 2, 15, 1),
    Sketcher.Constraint("Coincident", 20, 2, 21, 1),
    Sketcher.Constraint("Coincident", 21, 2, 22, 1),
    Sketcher.Constraint("Coincident", 22, 2, 23, 1),
    Sketcher.Constraint("Coincident", 23, 2, 20, 1),
    Sketcher.Constraint("Coincident", 25, 2, 26, 1),
    Sketcher.Constraint("Coincident", 26, 2, 27, 1),
    Sketcher.Constraint("Coincident", 27, 2, 28, 1),
    Sketcher.Constraint("Coincident", 28, 2, 25, 1),
    Sketcher.Constraint("Coincident", 30, 2, 31, 1),
    Sketcher.Constraint("Coincident", 31, 2, 32, 1),
    Sketcher.Constraint("Coincident", 32, 2, 33, 1),
    Sketcher.Constraint("Coincident", 33, 2, 30, 1),
    Sketcher.Constraint("Coincident", 35, 2, 36, 1),
    Sketcher.Constraint("Coincident", 36, 2, 37, 1),
    Sketcher.Constraint("Coincident", 37, 2, 38, 1),
    Sketcher.Constraint("Coincident", 38, 2, 35, 1),
    Sketcher.Constraint("Coincident", 40, 2, 41, 1),
    Sketcher.Constraint("Coincident", 41, 2, 42, 1),
    Sketcher.Constraint("Coincident", 42, 2, 43, 1),
    Sketcher.Constraint("Coincident", 43, 2, 40, 1),
    Sketcher.Constraint("Coincident", 45, 2, 46, 1),
    Sketcher.Constraint("Coincident", 46, 2, 47, 1),
    Sketcher.Constraint("Coincident", 47, 2, 48, 1),
    Sketcher.Constraint("Coincident", 48, 2, 45, 1),
    Sketcher.Constraint("Coincident", 50, 2, 51, 1),
    Sketcher.Constraint("Coincident", 51, 2, 52, 1),
    Sketcher.Constraint("Coincident", 52, 2, 53, 1),
    Sketcher.Constraint("Coincident", 53, 2, 50, 1),
    Sketcher.Constraint("Coincident", 55, 2, 56, 1),
    Sketcher.Constraint("Coincident", 56, 2, 57, 1),
    Sketcher.Constraint("Coincident", 57, 2, 58, 1),
    Sketcher.Constraint("Coincident", 58, 2, 55, 1),
    Sketcher.Constraint("Vertical", 0),
    Sketcher.Constraint("Horizontal", 1),
    Sketcher.Constraint("Vertical", 2),
    Sketcher.Constraint("Horizontal", 3),
    Sketcher.Constraint("Vertical", 5),
    Sketcher.Constraint("Horizontal", 6),
    Sketcher.Constraint("Vertical", 7),
    Sketcher.Constraint("Horizontal", 8),
    Sketcher.Constraint("Vertical", 10),
    Sketcher.Constraint("Horizontal", 11),
    Sketcher.Constraint("Vertical", 12),
    Sketcher.Constraint("Horizontal", 13),
    Sketcher.Constraint("Vertical", 15),
    Sketcher.Constraint("Horizontal", 16),
    Sketcher.Constraint("Vertical", 17),
    Sketcher.Constraint("Horizontal", 18),
    Sketcher.Constraint("Vertical", 20),
    Sketcher.Constraint("Horizontal", 21),
    Sketcher.Constraint("Vertical", 22),
    Sketcher.Constraint("Horizontal", 23),
    Sketcher.Constraint("Vertical", 25),
    Sketcher.Constraint("Horizontal", 26),
    Sketcher.Constraint("Vertical", 27),
    Sketcher.Constraint("Horizontal", 28),
    Sketcher.Constraint("Vertical", 30),
    Sketcher.Constraint("Horizontal", 31),
    Sketcher.Constraint("Vertical", 32),
    Sketcher.Constraint("Horizontal", 33),
    Sketcher.Constraint("Vertical", 35),
    Sketcher.Constraint("Horizontal", 36),
    Sketcher.Constraint("Vertical", 37),
    Sketcher.Constraint("Horizontal", 38),
    Sketcher.Constraint("Vertical", 40),
    Sketcher.Constraint("Horizontal", 41),
    Sketcher.Constraint("Vertical", 42),
    Sketcher.Constraint("Horizontal", 43),
    Sketcher.Constraint("Vertical", 45),
    Sketcher.Constraint("Horizontal", 46),
    Sketcher.Constraint("Vertical", 47),
    Sketcher.Constraint("Horizontal", 48),
    Sketcher.Constraint("Vertical", 50),
    Sketcher.Constraint("Horizontal", 51),
    Sketcher.Constraint("Vertical", 52),
    Sketcher.Constraint("Horizontal", 53),
    Sketcher.Constraint("Vertical", 55),
    Sketcher.Constraint("Horizontal", 56),
    Sketcher.Constraint("Vertical", 57),
    Sketcher.Constraint("Horizontal", 58),
    Sketcher.Constraint("Equal", 4, 9),
    Sketcher.Constraint("Equal", 9, 14),
    Sketcher.Constraint("Equal", 14, 19),
    Sketcher.Constraint("Equal", 19, 24),
    Sketcher.Constraint("Equal", 24, 29),
    Sketcher.Constraint("Equal", 29, 34),
    Sketcher.Constraint("Equal", 34, 39),
    Sketcher.Constraint("Equal", 39, 44),
    Sketcher.Constraint("Equal", 44, 49),
    Sketcher.Constraint("Equal", 49, 54),
    Sketcher.Constraint("Equal", 54, 59),
    Sketcher.Constraint("Horizontal", 4, 3, 9, 3),
    Sketcher.Constraint("Horizontal", 14, 3, 19, 3),
    Sketcher.Constraint("Horizontal", 24, 3, 29, 3),
    Sketcher.Constraint("Horizontal", 34, 3, 39, 3),
    Sketcher.Constraint("Horizontal", 44, 3, 49, 3),
    Sketcher.Constraint("Horizontal", 54, 3, 59, 3),
    Sketcher.Constraint("Horizontal", 1, 2, 5, 2),
    Sketcher.Constraint("Horizontal", 3, 2, 7, 2),
    Sketcher.Constraint("Horizontal", 11, 2, 15, 2),
    Sketcher.Constraint("Horizontal", 13, 2, 17, 2),
    Sketcher.Constraint("Horizontal", 21, 2, 25, 2),
    Sketcher.Constraint("Horizontal", 23, 2, 27, 2),
    Sketcher.Constraint("Horizontal", 31, 2, 35, 2),
    Sketcher.Constraint("Horizontal", 33, 2, 37, 2),
    Sketcher.Constraint("Horizontal", 41, 2, 45, 2),
    Sketcher.Constraint("Horizontal", 43, 2, 47, 2),
    Sketcher.Constraint("Horizontal", 51, 2, 55, 2),
    Sketcher.Constraint("Horizontal", 53, 2, 57, 2),
    Sketcher.Constraint("Vertical", 4, 3, 14, 3),
    Sketcher.Constraint("Vertical", 9, 3, 19, 3),
    Sketcher.Constraint("Vertical", 14, 3, 24, 3),
    Sketcher.Constraint("Vertical", 19, 3, 29, 3),
    Sketcher.Constraint("Vertical", 24, 3, 34, 3),
    Sketcher.Constraint("Vertical", 29, 3, 39, 3),
    Sketcher.Constraint("Vertical", 34, 3, 44, 3),
    Sketcher.Constraint("Vertical", 39, 3, 49, 3),
    Sketcher.Constraint("Vertical", 49, 3, 54, 3),
    Sketcher.Constraint("Vertical", 44, 3, 59, 3),
    Sketcher.Constraint("Vertical", 3, 2, 10, 2),
    Sketcher.Constraint("Vertical", 2, 2, 11, 2),
    Sketcher.Constraint("Vertical", 8, 2, 15, 2),
    Sketcher.Constraint("Vertical", 7, 2, 16, 2),
    Sketcher.Constraint("Vertical", 13, 2, 20, 2),
    Sketcher.Constraint("Vertical", 12, 2, 21, 2),
    Sketcher.Constraint("Vertical", 18, 2, 25, 2),
    Sketcher.Constraint("Vertical", 17, 2, 26, 2),
    Sketcher.Constraint("Vertical", 23, 2, 30, 2),
    Sketcher.Constraint("Vertical", 22, 2, 31, 2),
    Sketcher.Constraint("Vertical", 28, 2, 35, 2),
    Sketcher.Constraint("Vertical", 27, 2, 36, 2),
    Sketcher.Constraint("Vertical", 33, 2, 40, 2),
    Sketcher.Constraint("Vertical", 32, 2, 41, 2),
    Sketcher.Constraint("Vertical", 38, 2, 45, 2),
    Sketcher.Constraint("Vertical", 37, 2, 46, 2),
    Sketcher.Constraint("Vertical", 48, 2, 50, 2),
    Sketcher.Constraint("Vertical", 47, 2, 51, 2),
    Sketcher.Constraint("Vertical", 43, 2, 55, 2),
    Sketcher.Constraint("Vertical", 42, 2, 56, 2),
    Sketcher.Constraint("Equal", 3, 6),
    Sketcher.Constraint("Equal", 58, 0),
    Sketcher.Constraint("Equal", 7, 10),
    Sketcher.Constraint("Equal", 17, 20),
    Sketcher.Constraint("Equal", 27, 30),
    Sketcher.Constraint("Equal", 37, 40),
    Sketcher.Constraint("Equal", 47, 50),
    Sketcher.Constraint("Diameter", 4, Q("6 mm")),
    Sketcher.Constraint("DistanceX", 1, 2, 1, 1, Q("9.5 mm")),
    Sketcher.Constraint("DistanceX", -1, 1, 4, 3, Q("7 mm")),
    Sketcher.Constraint("DistanceX", 5, 2, -1, 1, Q("10 mm")),
    Sketcher.Constraint("DistanceY", -1, 1, 52, 2, Q("12 mm")),
    Sketcher.Constraint("DistanceX", 9, 3, 1, 2, Q("17 mm")),
    Sketcher.Constraint("DistanceY", 14, 3, 4, 3, Q("12.7 mm")),
    Sketcher.Constraint("DistanceY", 44, 3, 34, 3, Q("12.7 mm")),
    Sketcher.Constraint("DistanceY", 10, 2, 0, 2, Q("12.7 mm")),
    Sketcher.Constraint("DistanceY", 40, 2, 30, 2, Q("12.7 mm")),
    Sketcher.Constraint("DistanceY", -1, 1, 4, 3, Q("80.29 mm")),
    Sketcher.Constraint("DistanceX", 9, 3, -1, 1, Q("14.75 mm")),
    Sketcher.Constraint("DistanceY", -1, 1, 24, 3, Q("51.71 mm")),
    Sketcher.Constraint("DistanceY", -1, 1, 34, 3, Q("35.83 mm")),
    Sketcher.Constraint("DistanceY", -1, 1, 54, 3, Q("7.25 mm")),
    Sketcher.Constraint("DistanceY", -1, 1, 0, 2, Q("75.54 mm")),
    Sketcher.Constraint("DistanceY", -1, 1, 20, 2, Q("46.96 mm")),
    Sketcher.Constraint("DistanceY", -1, 1, 30, 2, Q("31.08 mm")),
])
pad2 = body.newObject("PartDesign::Pad", "Pad001")
pad2.Profile = sketch2
pad2.Length = 2

# Sketch on XY plane
sketch3 = body.newObject("Sketcher::SketchObject", "Sketch002")
sketch3.AttachmentSupport = (doc.getObject("XY_Plane"), [""])
sketch3.MapMode = "FlatFace"
sketch3.addGeometry([
    Part.LineSegment(Vector(-9.2, 88.9, 0), Vector(-9.2, 0, 0)),  # 0
    Part.LineSegment(Vector(-9.2, 0, 0), Vector(-25.2, 0, 0)),  # 1
    Part.LineSegment(Vector(-25.2, 0, 0), Vector(-25.2, 88.9, 0)),  # 2
    Part.LineSegment(Vector(-25.2, 88.9, 0), Vector(-9.2, 88.9, 0)),  # 3
    Part.Circle(Vector(-14.8, 7.2, 0), Vector(0, 0, 1), 3),  # 4
    Part.Circle(Vector(-14.8, 23.1, 0), Vector(0, 0, 1), 3),  # 5
    Part.Circle(Vector(-14.8, 35.8, 0), Vector(0, 0, 1), 3),  # 6
    Part.Circle(Vector(-14.8, 51.7, 0), Vector(0, 0, 1), 3),  # 7
    Part.Circle(Vector(-14.8, 67.6, 0), Vector(0, 0, 1), 3),  # 8
    Part.Circle(Vector(-14.8, 80.3, 0), Vector(0, 0, 1), 3),  # 9
], False)
sketch3.addConstraint([
    Sketcher.Constraint("Coincident", 0, 2, 1, 1),
    Sketcher.Constraint("Coincident", 1, 2, 2, 1),
    Sketcher.Constraint("Coincident", 2, 2, 3, 1),
    Sketcher.Constraint("Coincident", 3, 2, 0, 1),
    Sketcher.Constraint("Vertical", 0),
    Sketcher.Constraint("Horizontal", 1),
    Sketcher.Constraint("Vertical", 2),
    Sketcher.Constraint("Horizontal", 3),
    Sketcher.Constraint("Equal", 4, 5),
    Sketcher.Constraint("Equal", 5, 6),
    Sketcher.Constraint("Equal", 6, 7),
    Sketcher.Constraint("Equal", 7, 8),
    Sketcher.Constraint("Equal", 8, 9),
    Sketcher.Constraint("PointOnObject", 0, 2, -1),
    Sketcher.Constraint("Vertical", 4, 3, 5, 3),
    Sketcher.Constraint("Vertical", 5, 3, 6, 3),
    Sketcher.Constraint("Vertical", 6, 3, 7, 3),
    Sketcher.Constraint("Vertical", 7, 3, 8, 3),
    Sketcher.Constraint("Vertical", 8, 3, 9, 3),
    Sketcher.Constraint("Diameter", 4, Q("6 mm")),
    Sketcher.Constraint("DistanceX", 1, 2, 1, 1, Q("16 mm")),
    Sketcher.Constraint("DistanceY", 0, 2, 0, 1, Q("88.9 mm")),
    Sketcher.Constraint("DistanceY", 5, 3, 6, 3, Q("12.7 mm")),
    Sketcher.Constraint("DistanceY", 8, 3, 9, 3, Q("12.7 mm")),
    Sketcher.Constraint("DistanceX", 4, 3, 0, 2, Q("5.5 mm")),
    Sketcher.Constraint("DistanceX", 4, 3, -1, 1, Q("14.75 mm")),
    Sketcher.Constraint("DistanceY", -1, 1, 4, 3, Q("7.25 mm")),
    Sketcher.Constraint("DistanceY", -1, 1, 5, 3, Q("23.13 mm")),
    Sketcher.Constraint("DistanceY", -1, 1, 7, 3, Q("51.71 mm")),
    Sketcher.Constraint("DistanceY", -1, 1, 8, 3, Q("67.59 mm")),
])
pad3 = body.newObject("PartDesign::Pad", "Pad002")
pad3.Profile = sketch3
pad3.Length = 6.5

doc.recompute()
